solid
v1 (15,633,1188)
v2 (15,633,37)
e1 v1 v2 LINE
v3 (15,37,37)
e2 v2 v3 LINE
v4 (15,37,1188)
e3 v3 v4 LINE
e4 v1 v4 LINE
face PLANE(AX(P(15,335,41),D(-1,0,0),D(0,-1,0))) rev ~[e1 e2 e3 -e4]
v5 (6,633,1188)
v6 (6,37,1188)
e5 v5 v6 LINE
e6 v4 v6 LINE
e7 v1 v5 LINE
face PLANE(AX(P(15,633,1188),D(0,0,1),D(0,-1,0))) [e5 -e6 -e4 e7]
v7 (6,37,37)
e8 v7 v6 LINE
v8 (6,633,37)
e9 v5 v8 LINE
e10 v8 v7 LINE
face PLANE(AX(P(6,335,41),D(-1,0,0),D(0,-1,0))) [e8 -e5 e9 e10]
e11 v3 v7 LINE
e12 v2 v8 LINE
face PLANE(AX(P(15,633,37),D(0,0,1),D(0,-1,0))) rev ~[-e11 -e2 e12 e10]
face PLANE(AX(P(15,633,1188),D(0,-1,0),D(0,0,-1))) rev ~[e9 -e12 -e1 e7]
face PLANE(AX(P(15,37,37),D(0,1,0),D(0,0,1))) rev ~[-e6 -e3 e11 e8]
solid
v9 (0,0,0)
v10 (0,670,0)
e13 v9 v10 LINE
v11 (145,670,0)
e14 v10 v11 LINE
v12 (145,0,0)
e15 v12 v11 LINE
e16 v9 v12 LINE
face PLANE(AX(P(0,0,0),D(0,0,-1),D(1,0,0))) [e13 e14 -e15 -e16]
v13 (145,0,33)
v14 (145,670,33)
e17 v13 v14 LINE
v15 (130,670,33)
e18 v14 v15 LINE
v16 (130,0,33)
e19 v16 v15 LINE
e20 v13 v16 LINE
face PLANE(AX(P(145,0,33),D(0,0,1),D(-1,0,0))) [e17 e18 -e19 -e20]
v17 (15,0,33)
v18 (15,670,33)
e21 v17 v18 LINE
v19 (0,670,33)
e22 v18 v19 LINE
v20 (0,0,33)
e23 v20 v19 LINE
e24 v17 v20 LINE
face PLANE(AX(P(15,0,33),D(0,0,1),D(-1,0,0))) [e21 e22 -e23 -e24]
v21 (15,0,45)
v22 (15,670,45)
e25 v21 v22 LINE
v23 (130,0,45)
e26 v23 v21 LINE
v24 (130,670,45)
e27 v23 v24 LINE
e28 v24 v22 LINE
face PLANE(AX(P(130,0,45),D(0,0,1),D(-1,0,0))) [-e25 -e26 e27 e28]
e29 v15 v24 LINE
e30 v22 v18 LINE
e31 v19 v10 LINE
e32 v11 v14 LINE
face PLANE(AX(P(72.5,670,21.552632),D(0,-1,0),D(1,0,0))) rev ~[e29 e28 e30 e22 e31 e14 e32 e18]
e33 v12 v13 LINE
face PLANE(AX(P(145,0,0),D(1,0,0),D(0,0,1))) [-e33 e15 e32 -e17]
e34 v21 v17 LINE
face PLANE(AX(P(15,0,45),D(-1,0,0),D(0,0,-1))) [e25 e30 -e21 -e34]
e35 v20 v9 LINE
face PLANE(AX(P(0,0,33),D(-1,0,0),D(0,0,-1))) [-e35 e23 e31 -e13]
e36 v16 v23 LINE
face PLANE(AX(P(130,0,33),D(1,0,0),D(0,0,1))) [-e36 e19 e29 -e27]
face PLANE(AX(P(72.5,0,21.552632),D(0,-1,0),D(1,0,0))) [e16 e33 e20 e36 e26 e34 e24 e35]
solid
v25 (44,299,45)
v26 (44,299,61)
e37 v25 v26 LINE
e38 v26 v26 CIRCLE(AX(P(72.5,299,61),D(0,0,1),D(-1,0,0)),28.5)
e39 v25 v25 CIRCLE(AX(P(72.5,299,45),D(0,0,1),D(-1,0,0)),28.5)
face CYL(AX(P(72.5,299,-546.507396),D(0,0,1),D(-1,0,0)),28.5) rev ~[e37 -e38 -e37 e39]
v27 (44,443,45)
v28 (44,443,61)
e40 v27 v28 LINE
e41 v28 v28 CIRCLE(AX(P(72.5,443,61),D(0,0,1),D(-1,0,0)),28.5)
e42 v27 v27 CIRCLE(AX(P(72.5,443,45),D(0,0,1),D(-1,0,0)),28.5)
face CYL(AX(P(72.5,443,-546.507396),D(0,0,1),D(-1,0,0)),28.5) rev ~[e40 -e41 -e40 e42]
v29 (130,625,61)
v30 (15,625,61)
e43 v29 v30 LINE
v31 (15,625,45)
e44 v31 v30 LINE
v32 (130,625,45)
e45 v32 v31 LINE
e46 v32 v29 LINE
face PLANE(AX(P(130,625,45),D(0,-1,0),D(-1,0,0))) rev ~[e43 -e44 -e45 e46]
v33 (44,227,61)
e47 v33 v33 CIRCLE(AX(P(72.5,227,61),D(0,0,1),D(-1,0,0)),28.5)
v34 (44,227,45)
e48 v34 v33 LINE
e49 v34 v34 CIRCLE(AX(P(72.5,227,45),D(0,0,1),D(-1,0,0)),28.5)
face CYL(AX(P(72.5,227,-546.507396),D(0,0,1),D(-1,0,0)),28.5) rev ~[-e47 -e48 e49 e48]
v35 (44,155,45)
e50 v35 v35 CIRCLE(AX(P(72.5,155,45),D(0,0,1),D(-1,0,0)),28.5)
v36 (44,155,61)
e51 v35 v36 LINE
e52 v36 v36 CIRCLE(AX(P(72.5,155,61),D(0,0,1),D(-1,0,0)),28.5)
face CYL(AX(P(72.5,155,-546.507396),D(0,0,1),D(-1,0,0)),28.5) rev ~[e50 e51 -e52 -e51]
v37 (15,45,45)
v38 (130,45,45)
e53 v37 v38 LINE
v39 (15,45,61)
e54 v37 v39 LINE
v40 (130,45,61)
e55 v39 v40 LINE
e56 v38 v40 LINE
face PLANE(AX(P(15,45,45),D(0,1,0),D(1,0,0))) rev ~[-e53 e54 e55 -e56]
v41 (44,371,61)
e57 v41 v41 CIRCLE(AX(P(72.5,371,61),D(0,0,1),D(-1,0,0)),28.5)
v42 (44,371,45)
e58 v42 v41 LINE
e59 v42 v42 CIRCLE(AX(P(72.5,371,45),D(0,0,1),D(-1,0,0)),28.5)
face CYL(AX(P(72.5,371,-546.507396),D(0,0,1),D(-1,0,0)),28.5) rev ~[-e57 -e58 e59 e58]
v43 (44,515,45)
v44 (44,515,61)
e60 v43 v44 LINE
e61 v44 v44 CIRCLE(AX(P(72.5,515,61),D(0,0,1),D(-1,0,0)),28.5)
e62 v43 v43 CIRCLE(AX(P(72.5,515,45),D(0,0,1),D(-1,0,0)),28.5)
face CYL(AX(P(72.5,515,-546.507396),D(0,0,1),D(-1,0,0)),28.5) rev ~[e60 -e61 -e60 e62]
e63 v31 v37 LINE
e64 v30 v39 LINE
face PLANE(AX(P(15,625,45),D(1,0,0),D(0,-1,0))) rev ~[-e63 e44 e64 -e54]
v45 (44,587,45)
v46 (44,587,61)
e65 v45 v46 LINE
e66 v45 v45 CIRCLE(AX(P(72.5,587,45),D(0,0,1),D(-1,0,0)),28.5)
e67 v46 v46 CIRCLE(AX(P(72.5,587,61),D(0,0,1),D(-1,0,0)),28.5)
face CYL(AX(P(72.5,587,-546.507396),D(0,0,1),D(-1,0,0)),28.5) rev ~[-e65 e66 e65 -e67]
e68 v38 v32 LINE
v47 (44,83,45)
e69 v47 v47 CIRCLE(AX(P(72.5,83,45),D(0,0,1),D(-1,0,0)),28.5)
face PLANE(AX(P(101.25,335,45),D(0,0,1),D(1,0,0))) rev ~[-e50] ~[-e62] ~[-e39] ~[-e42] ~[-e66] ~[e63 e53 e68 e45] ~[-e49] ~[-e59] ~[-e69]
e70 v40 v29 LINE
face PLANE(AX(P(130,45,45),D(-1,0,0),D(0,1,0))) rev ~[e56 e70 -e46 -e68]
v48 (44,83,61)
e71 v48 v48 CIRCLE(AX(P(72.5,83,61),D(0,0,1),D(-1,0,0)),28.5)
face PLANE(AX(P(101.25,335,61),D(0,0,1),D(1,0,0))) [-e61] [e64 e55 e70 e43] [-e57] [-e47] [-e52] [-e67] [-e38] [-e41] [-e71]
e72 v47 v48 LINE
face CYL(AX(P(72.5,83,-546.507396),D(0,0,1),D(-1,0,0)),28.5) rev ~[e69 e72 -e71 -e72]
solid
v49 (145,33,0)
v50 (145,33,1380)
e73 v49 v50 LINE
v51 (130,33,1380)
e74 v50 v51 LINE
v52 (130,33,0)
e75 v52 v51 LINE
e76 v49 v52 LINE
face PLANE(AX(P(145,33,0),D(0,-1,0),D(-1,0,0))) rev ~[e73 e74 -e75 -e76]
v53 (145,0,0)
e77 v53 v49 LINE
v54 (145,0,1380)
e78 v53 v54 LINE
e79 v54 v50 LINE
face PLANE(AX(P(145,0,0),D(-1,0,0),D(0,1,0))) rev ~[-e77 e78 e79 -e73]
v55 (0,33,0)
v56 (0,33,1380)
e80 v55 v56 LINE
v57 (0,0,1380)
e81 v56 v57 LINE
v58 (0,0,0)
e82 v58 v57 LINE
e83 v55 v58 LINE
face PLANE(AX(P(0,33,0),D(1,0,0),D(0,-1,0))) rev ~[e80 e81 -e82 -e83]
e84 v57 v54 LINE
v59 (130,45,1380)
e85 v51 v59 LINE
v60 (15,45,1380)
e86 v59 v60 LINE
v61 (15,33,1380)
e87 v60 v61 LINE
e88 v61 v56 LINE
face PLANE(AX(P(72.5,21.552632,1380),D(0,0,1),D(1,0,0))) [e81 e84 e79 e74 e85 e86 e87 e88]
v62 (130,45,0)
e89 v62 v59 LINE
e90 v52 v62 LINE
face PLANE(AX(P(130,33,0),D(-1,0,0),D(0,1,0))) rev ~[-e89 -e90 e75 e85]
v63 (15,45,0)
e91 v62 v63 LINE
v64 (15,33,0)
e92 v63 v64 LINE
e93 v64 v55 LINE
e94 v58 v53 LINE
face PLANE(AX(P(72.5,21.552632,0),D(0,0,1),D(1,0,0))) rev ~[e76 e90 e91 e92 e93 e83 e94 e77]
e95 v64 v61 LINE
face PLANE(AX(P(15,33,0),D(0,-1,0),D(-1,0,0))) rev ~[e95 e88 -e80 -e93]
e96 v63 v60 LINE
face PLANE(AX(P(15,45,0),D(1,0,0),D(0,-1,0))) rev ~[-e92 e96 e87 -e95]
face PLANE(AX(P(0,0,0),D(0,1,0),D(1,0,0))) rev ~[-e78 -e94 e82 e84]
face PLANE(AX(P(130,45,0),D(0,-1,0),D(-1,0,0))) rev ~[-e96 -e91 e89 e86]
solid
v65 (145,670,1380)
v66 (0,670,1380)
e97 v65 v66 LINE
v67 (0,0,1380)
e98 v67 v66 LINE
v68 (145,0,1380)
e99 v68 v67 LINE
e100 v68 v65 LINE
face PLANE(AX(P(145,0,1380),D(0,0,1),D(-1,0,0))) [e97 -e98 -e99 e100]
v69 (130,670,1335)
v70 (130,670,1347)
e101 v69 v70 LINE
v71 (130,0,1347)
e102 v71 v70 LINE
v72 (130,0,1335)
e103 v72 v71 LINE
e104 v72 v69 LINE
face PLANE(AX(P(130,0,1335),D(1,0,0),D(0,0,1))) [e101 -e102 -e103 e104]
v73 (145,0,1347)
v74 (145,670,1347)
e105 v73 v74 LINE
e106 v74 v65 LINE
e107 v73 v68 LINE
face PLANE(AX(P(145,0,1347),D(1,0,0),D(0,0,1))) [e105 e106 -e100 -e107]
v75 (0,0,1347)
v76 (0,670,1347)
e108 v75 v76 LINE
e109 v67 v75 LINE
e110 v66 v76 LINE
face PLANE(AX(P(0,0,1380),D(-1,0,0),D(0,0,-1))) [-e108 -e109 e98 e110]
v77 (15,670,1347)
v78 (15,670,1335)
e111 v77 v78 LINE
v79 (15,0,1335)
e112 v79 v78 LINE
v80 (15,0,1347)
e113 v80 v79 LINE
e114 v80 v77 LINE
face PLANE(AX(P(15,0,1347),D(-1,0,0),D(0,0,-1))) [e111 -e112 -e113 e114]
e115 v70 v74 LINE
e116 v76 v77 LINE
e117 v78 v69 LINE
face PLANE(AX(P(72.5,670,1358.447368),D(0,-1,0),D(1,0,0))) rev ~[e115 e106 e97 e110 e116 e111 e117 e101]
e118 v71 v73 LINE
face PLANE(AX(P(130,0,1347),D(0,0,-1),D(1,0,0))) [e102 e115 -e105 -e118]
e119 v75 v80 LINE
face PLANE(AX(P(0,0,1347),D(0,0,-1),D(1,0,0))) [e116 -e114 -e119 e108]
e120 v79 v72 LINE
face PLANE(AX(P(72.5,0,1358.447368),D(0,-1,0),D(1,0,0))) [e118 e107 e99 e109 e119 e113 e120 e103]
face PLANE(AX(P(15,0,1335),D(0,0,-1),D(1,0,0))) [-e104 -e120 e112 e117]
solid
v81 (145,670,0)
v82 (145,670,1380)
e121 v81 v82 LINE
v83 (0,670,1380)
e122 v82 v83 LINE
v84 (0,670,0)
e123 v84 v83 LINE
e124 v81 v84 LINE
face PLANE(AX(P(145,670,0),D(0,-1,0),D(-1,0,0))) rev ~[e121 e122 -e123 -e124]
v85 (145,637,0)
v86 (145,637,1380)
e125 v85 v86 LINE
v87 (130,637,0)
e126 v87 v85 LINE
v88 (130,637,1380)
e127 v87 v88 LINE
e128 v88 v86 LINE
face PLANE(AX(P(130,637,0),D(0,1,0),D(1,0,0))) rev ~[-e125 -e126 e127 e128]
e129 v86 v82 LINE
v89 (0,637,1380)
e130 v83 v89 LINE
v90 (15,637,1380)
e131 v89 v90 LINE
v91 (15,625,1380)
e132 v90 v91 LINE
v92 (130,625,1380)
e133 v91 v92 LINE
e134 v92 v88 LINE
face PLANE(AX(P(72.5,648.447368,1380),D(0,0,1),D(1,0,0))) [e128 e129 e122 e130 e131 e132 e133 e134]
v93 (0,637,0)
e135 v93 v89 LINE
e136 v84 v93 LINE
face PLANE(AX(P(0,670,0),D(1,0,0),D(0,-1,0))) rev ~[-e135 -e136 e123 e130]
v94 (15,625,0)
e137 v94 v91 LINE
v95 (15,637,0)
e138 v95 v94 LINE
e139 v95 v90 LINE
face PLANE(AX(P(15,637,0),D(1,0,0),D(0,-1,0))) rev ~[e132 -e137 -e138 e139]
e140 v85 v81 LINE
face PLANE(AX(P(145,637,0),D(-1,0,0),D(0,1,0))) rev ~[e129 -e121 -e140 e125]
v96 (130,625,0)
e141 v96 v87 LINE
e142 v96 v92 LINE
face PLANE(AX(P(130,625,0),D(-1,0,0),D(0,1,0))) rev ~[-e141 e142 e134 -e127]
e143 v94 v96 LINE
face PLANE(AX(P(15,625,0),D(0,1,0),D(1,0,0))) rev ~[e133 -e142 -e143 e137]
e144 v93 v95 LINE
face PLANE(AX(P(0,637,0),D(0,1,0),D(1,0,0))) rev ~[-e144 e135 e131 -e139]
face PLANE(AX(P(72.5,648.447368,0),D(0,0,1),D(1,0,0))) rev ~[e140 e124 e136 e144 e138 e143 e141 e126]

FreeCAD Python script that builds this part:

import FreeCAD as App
import Part
import Sketcher
Q = App.Units.Quantity


def add_polygon(sketch, points):
    """Adds a closed chain of lines whose ends are joined by coincident constraints."""
    first, n = sketch.GeometryCount, len(points)
    for a, b in zip(points, points[1:] + points[:1]):
        sketch.addGeometry(Part.LineSegment(App.Vector(*a, 0), App.Vector(*b, 0)), False)
    for i in range(n):
        sketch.addConstraint(Sketcher.Constraint("Coincident", first + i, 2, first + (i + 1) % n, 1))

doc = App.newDocument("Part")
params = doc.addObject("Spreadsheet::Sheet", "Params")
for row, (alias, value) in enumerate([
    ("sketch1_width", "145 mm"),
    ("sketch1_width2", "15 mm"),
    ("sketch1_height", "33 mm"),
    ("sketch1_height2", "12 mm"),
    ("pad1_length", "1380 mm"),
    ("sketch2_width", "145 mm"),
    ("sketch2_width2", "15 mm"),
    ("sketch2_height", "33 mm"),
    ("sketch2_height2", "12 mm"),
    ("pad2_length", "1380 mm"),
    ("sketch3_width", "15 mm"),
    ("sketch3_width2", "115 mm"),
    ("sketch3_height", "33 mm"),
    ("sketch3_height2", "12 mm"),
    ("pad3_length", "670 mm"),
    ("sketch4_width", "145 mm"),
    ("sketch4_width2", "15 mm"),
    ("sketch4_height", "33 mm"),
    ("sketch4_height2", "12 mm"),
    ("pad4_length", "670 mm"),
    ("sketch5_width", "115 mm"),
    ("sketch5_height", "580 mm"),
    ("pad5_length", "16 mm"),
    ("sketch6_diameter", "57 mm"),
    ("hole_diameter", "57 mm"),
    ("sketch7_width", "596 mm"),
    ("sketch7_height", "1151 mm"),
    ("pad6_length", "9 mm"),
], start=1):
    params.set(f"A{row}", alias)
    params.set(f"B{row}", "=" + value)
    params.setAlias(f"B{row}", alias)

body = doc.addObject("PartDesign::Body", "Body")

# Sketch on XY plane
sketch1 = doc.addObject("Sketcher::SketchObject", "Sketch")
body.addObject(sketch1)
sketch1.AttachmentSupport = (doc.XY_Plane, [""])
sketch1.MapMode = "FlatFace"
add_polygon(sketch1, [(0, 33), (0, 0), (145, 0), (145, 33), (130, 33), (130, 45), (15, 45), (15, 33)])  # lines 0-7
sketch1.addConstraint([
    Sketcher.Constraint("Vertical", 0),
    Sketcher.Constraint("Horizontal", 1),
    Sketcher.Constraint("Vertical", 2),
    Sketcher.Constraint("Horizontal", 3),
    Sketcher.Constraint("Vertical", 4),
    Sketcher.Constraint("Horizontal", 5),
    Sketcher.Constraint("Vertical", 6),
    Sketcher.Constraint("Horizontal", 7),
    Sketcher.Constraint("Coincident", 0, 2, -1, 1),
    Sketcher.Constraint("Horizontal", 3, 2, 6, 2),
    Sketcher.Constraint("Equal", 3, 7),
    Sketcher.Constraint("DistanceX", 1, 1, 1, 2, Q("145 mm")),
    Sketcher.Constraint("DistanceX", 3, 2, 3, 1, Q("15 mm")),
    Sketcher.Constraint("DistanceY", 0, 2, 0, 1, Q("33 mm")),
    Sketcher.Constraint("DistanceY", 4, 1, 4, 2, Q("12 mm")),
])
sketch1.setExpression("Constraints[19]", "Params.sketch1_width")
sketch1.setExpression("Constraints[20]", "Params.sketch1_width2")
sketch1.setExpression("Constraints[21]", "Params.sketch1_height")
sketch1.setExpression("Constraints[22]", "Params.sketch1_height2")
pad1 = doc.addObject("PartDesign::Pad", "Pad")
body.addObject(pad1)
pad1.Profile = sketch1
pad1.setExpression("Length", "Params.pad1_length")
body2 = doc.addObject("PartDesign::Body", "Body001")

# Sketch on XY plane
sketch2 = doc.addObject("Sketcher::SketchObject", "Sketch001")
body2.addObject(sketch2)
sketch2.AttachmentSupport = (doc.getObject("XY_Plane001"), [""])
sketch2.MapMode = "FlatFace"
add_polygon(sketch2, [(145, 670), (0, 670), (0, 637), (15, 637), (15, 625), (130, 625), (130, 637), (145, 637)])  # lines 0-7
sketch2.addConstraint([
    Sketcher.Constraint("Horizontal", 0),
    Sketcher.Constraint("Vertical", 1),
    Sketcher.Constraint("Horizontal", 2),
    Sketcher.Constraint("Vertical", 3),
    Sketcher.Constraint("Horizontal", 4),
    Sketcher.Constraint("Vertical", 5),
    Sketcher.Constraint("Horizontal", 6),
    Sketcher.Constraint("Vertical", 7),
    Sketcher.Constraint("PointOnObject", 0, 2, -2),
    Sketcher.Constraint("Horizontal", 2, 2, 5, 2),
    Sketcher.Constraint("Equal", 2, 6),
    Sketcher.Constraint("DistanceX", 0, 2, 0, 1, Q("145 mm")),
    Sketcher.Constraint("DistanceX", 2, 1, 2, 2, Q("15 mm")),
    Sketcher.Constraint("DistanceY", 1, 2, 1, 1, Q("33 mm")),
    Sketcher.Constraint("DistanceY", 3, 2, 3, 1, Q("12 mm")),
    Sketcher.Constraint("DistanceY", -1, 1, 0, 2, Q("670 mm")),
])
sketch2.setExpression("Constraints[19]", "Params.sketch2_width")
sketch2.setExpression("Constraints[20]", "Params.sketch2_width2")
sketch2.setExpression("Constraints[21]", "Params.sketch2_height")
sketch2.setExpression("Constraints[22]", "Params.sketch2_height2")
pad2 = doc.addObject("PartDesign::Pad", "Pad001")
body2.addObject(pad2)
pad2.Profile = sketch2
pad2.setExpression("Length", "Params.pad2_length")
body3 = doc.addObject("PartDesign::Body", "Body002")

# Sketch on XZ plane
sketch3 = doc.addObject("Sketcher::SketchObject", "Sketch002")
body3.addObject(sketch3)
sketch3.AttachmentSupport = (doc.getObject("XZ_Plane002"), [""])
sketch3.MapMode = "FlatFace"
add_polygon(sketch3, [(0, 1380), (0, 1347), (15, 1347), (15, 1335), (130, 1335), (130, 1347), (145, 1347), (145, 1380)])  # lines 0-7
sketch3.addConstraint([
    Sketcher.Constraint("Vertical", 0),
    Sketcher.Constraint("Horizontal", 1),
    Sketcher.Constraint("Vertical", 2),
    Sketcher.Constraint("Horizontal", 3),
    Sketcher.Constraint("Vertical", 4),
    Sketcher.Constraint("Horizontal", 5),
    Sketcher.Constraint("Vertical", 6),
    Sketcher.Constraint("Horizontal", 7),
    Sketcher.Constraint("PointOnObject", 0, 2, -2),
    Sketcher.Constraint("Horizontal", 1, 2, 4, 2),
    Sketcher.Constraint("Equal", 1, 5),
    Sketcher.Constraint("DistanceX", 1, 1, 1, 2, Q("15 mm")),
    Sketcher.Constraint("DistanceX", 3, 1, 3, 2, Q("115 mm")),
    Sketcher.Constraint("DistanceY", 0, 2, 0, 1, Q("33 mm")),
    Sketcher.Constraint("DistanceY", 2, 2, 2, 1, Q("12 mm")),
    Sketcher.Constraint("DistanceY", -1, 1, 0, 2, Q("1347 mm")),
])
sketch3.setExpression("Constraints[19]", "Params.sketch3_width")
sketch3.setExpression("Constraints[20]", "Params.sketch3_width2")
sketch3.setExpression("Constraints[21]", "Params.sketch3_height")
sketch3.setExpression("Constraints[22]", "Params.sketch3_height2")
pad3 = doc.addObject("PartDesign::Pad", "Pad002")
body3.addObject(pad3)
pad3.Profile = sketch3
pad3.setExpression("Length", "Params.pad3_length")
pad3.Reversed = True
body4 = doc.addObject("PartDesign::Body", "Body003")

# Sketch on XZ plane
sketch4 = doc.addObject("Sketcher::SketchObject", "Sketch003")
body4.addObject(sketch4)
sketch4.AttachmentSupport = (doc.getObject("XZ_Plane003"), [""])
sketch4.MapMode = "FlatFace"
add_polygon(sketch4, [(0, 33), (0, 0), (145, 0), (145, 33), (130, 33), (130, 45), (15, 45), (15, 33)])  # lines 0-7
sketch4.addConstraint([
    Sketcher.Constraint("Vertical", 0),
    Sketcher.Constraint("Horizontal", 1),
    Sketcher.Constraint("Vertical", 2),
    Sketcher.Constraint("Horizontal", 3),
    Sketcher.Constraint("Vertical", 4),
    Sketcher.Constraint("Horizontal", 5),
    Sketcher.Constraint("Vertical", 6),
    Sketcher.Constraint("Horizontal", 7),
    Sketcher.Constraint("Coincident", 0, 2, -1, 1),
    Sketcher.Constraint("Horizontal", 3, 2, 6, 2),
    Sketcher.Constraint("Equal", 3, 7),
    Sketcher.Constraint("DistanceX", 1, 1, 1, 2, Q("145 mm")),
    Sketcher.Constraint("DistanceX", 3, 2, 3, 1, Q("15 mm")),
    Sketcher.Constraint("DistanceY", 0, 2, 0, 1, Q("33 mm")),
    Sketcher.Constraint("DistanceY", 4, 1, 4, 2, Q("12 mm")),
])
sketch4.setExpression("Constraints[19]", "Params.sketch4_width")
sketch4.setExpression("Constraints[20]", "Params.sketch4_width2")
sketch4.setExpression("Constraints[21]", "Params.sketch4_height")
sketch4.setExpression("Constraints[22]", "Params.sketch4_height2")
pad4 = doc.addObject("PartDesign::Pad", "Pad003")
body4.addObject(pad4)
pad4.Profile = sketch4
pad4.setExpression("Length", "Params.pad4_length")
pad4.Reversed = True
body5 = doc.addObject("PartDesign::Body", "Body004")

# Sketch on XY plane
sketch5 = doc.addObject("Sketcher::SketchObject", "Sketch004")
body5.addObject(sketch5)
sketch5.AttachmentSupport = (doc.getObject("XY_Plane004"), [""])
sketch5.MapMode = "FlatFace"
sketch5.AttachmentOffset = App.Placement(App.Vector(0, 0, 45), App.Rotation())
add_polygon(sketch5, [(130, 45), (130, 625), (15, 625), (15, 45)])  # lines 0-3
sketch5.addConstraint([
    Sketcher.Constraint("Vertical", 0),
    Sketcher.Constraint("Horizontal", 1),
    Sketcher.Constraint("Vertical", 2),
    Sketcher.Constraint("Horizontal", 3),
    Sketcher.Constraint("DistanceX", 1, 2, 1, 1, Q("115 mm")),
    Sketcher.Constraint("DistanceY", 0, 1, 0, 2, Q("580 mm")),
    Sketcher.Constraint("DistanceX", -1, 1, 0, 2, Q("130 mm")),
    Sketcher.Constraint("DistanceY", -1, 1, 0, 2, Q("625 mm")),
])
sketch5.setExpression("Constraints[8]", "Params.sketch5_width")
sketch5.setExpression("Constraints[9]", "Params.sketch5_height")
pad5 = doc.addObject("PartDesign::Pad", "Pad004")
body5.addObject(pad5)
pad5.Profile = sketch5
pad5.setExpression("Length", "Params.pad5_length")

# Sketch on XY plane
sketch6 = doc.addObject("Sketcher::SketchObject", "Sketch005")
body5.addObject(sketch6)
sketch6.AttachmentSupport = (doc.getObject("XY_Plane004"), [""])
sketch6.MapMode = "FlatFace"
sketch6.AttachmentOffset = App.Placement(App.Vector(0, 0, 45), App.Rotation())
sketch6.addGeometry([
    Part.Circle(App.Vector(72, 83, 0), App.Vector(0, 0, 1), 28),  # 0
    Part.Circle(App.Vector(72, 155, 0), App.Vector(0, 0, 1), 28),  # 1
    Part.Circle(App.Vector(72, 227, 0), App.Vector(0, 0, 1), 28),  # 2
    Part.Circle(App.Vector(72, 299, 0), App.Vector(0, 0, 1), 28),  # 3
    Part.Circle(App.Vector(72, 371, 0), App.Vector(0, 0, 1), 28),  # 4
    Part.Circle(App.Vector(72, 443, 0), App.Vector(0, 0, 1), 28),  # 5
    Part.Circle(App.Vector(72, 515, 0), App.Vector(0, 0, 1), 28),  # 6
    Part.Circle(App.Vector(72, 587, 0), App.Vector(0, 0, 1), 28),  # 7
], False)
sketch6.addConstraint([
    Sketcher.Constraint("Equal", 0, 1),
    Sketcher.Constraint("Equal", 1, 2),
    Sketcher.Constraint("Equal", 2, 3),
    Sketcher.Constraint("Equal", 3, 4),
    Sketcher.Constraint("Equal", 4, 5),
    Sketcher.Constraint("Equal", 5, 6),
    Sketcher.Constraint("Equal", 6, 7),
    Sketcher.Constraint("Vertical", 0, 3, 1, 3),
    Sketcher.Constraint("Vertical", 1, 3, 2, 3),
    Sketcher.Constraint("Vertical", 2, 3, 3, 3),
    Sketcher.Constraint("Vertical", 3, 3, 4, 3),
    Sketcher.Constraint("Vertical", 4, 3, 5, 3),
    Sketcher.Constraint("Vertical", 5, 3, 6, 3),
    Sketcher.Constraint("Vertical", 6, 3, 7, 3),
    Sketcher.Constraint("Diameter", 0, Q("57 mm")),
    Sketcher.Constraint("DistanceY", -1, 1, 0, 3, Q("83 mm")),
    Sketcher.Constraint("DistanceY", -1, 1, 1, 3, Q("155 mm")),
    Sketcher.Constraint("DistanceY", -1, 1, 2, 3, Q("227 mm")),
    Sketcher.Constraint("DistanceY", -1, 1, 3, 3, Q("299 mm")),
    Sketcher.Constraint("DistanceY", -1, 1, 4, 3, Q("371 mm")),
    Sketcher.Constraint("DistanceY", -1, 1, 5, 3, Q("443 mm")),
    Sketcher.Constraint("DistanceY", -1, 1, 6, 3, Q("515 mm")),
    Sketcher.Constraint("DistanceY", -1, 1, 7, 3, Q("587 mm")),
    Sketcher.Constraint("DistanceX", -1, 1, 0, 3, Q("72.5 mm")),
])
sketch6.setExpression("Constraints[14]", "Params.sketch6_diameter")
doc.recompute()
hole = doc.addObject("PartDesign::Hole", "Hole")
body5.addObject(hole)
hole.Profile = sketch6
hole.ThreadType = "None"
hole.setExpression("Diameter", "Params.hole_diameter")
hole.DepthType = "ThroughAll"
hole.Reversed = True
body6 = doc.addObject("PartDesign::Body", "Body005")

# Sketch on YZ plane
sketch7 = doc.addObject("Sketcher::SketchObject", "Sketch006")
body6.addObject(sketch7)
sketch7.AttachmentSupport = (doc.getObject("YZ_Plane005"), [""])
sketch7.MapMode = "FlatFace"
sketch7.AttachmentOffset = App.Placement(App.Vector(0, 0, 15), App.Rotation())
add_polygon(sketch7, [(633, 37), (37, 37), (37, 1188), (633, 1188)])  # lines 0-3
sketch7.addConstraint([
    Sketcher.Constraint("Horizontal", 0),
    Sketcher.Constraint("Vertical", 1),
    Sketcher.Constraint("Horizontal", 2),
    Sketcher.Constraint("Vertical", 3),
    Sketcher.Constraint("DistanceX", 0, 2, 0, 1, Q("596 mm")),
    Sketcher.Constraint("DistanceY", 1, 1, 1, 2, Q("1151 mm")),
    Sketcher.Constraint("DistanceX", -1, 1, 0, 2, Q("37 mm")),
    Sketcher.Constraint("DistanceY", -1, 1, 0, 2, Q("37 mm")),
])
sketch7.setExpression("Constraints[8]", "Params.sketch7_width")
sketch7.setExpression("Constraints[9]", "Params.sketch7_height")
pad6 = doc.addObject("PartDesign::Pad", "Pad005")
body6.addObject(pad6)
pad6.Profile = sketch7
pad6.setExpression("Length", "Params.pad6_length")
pad6.Reversed = True

doc.recompute()
